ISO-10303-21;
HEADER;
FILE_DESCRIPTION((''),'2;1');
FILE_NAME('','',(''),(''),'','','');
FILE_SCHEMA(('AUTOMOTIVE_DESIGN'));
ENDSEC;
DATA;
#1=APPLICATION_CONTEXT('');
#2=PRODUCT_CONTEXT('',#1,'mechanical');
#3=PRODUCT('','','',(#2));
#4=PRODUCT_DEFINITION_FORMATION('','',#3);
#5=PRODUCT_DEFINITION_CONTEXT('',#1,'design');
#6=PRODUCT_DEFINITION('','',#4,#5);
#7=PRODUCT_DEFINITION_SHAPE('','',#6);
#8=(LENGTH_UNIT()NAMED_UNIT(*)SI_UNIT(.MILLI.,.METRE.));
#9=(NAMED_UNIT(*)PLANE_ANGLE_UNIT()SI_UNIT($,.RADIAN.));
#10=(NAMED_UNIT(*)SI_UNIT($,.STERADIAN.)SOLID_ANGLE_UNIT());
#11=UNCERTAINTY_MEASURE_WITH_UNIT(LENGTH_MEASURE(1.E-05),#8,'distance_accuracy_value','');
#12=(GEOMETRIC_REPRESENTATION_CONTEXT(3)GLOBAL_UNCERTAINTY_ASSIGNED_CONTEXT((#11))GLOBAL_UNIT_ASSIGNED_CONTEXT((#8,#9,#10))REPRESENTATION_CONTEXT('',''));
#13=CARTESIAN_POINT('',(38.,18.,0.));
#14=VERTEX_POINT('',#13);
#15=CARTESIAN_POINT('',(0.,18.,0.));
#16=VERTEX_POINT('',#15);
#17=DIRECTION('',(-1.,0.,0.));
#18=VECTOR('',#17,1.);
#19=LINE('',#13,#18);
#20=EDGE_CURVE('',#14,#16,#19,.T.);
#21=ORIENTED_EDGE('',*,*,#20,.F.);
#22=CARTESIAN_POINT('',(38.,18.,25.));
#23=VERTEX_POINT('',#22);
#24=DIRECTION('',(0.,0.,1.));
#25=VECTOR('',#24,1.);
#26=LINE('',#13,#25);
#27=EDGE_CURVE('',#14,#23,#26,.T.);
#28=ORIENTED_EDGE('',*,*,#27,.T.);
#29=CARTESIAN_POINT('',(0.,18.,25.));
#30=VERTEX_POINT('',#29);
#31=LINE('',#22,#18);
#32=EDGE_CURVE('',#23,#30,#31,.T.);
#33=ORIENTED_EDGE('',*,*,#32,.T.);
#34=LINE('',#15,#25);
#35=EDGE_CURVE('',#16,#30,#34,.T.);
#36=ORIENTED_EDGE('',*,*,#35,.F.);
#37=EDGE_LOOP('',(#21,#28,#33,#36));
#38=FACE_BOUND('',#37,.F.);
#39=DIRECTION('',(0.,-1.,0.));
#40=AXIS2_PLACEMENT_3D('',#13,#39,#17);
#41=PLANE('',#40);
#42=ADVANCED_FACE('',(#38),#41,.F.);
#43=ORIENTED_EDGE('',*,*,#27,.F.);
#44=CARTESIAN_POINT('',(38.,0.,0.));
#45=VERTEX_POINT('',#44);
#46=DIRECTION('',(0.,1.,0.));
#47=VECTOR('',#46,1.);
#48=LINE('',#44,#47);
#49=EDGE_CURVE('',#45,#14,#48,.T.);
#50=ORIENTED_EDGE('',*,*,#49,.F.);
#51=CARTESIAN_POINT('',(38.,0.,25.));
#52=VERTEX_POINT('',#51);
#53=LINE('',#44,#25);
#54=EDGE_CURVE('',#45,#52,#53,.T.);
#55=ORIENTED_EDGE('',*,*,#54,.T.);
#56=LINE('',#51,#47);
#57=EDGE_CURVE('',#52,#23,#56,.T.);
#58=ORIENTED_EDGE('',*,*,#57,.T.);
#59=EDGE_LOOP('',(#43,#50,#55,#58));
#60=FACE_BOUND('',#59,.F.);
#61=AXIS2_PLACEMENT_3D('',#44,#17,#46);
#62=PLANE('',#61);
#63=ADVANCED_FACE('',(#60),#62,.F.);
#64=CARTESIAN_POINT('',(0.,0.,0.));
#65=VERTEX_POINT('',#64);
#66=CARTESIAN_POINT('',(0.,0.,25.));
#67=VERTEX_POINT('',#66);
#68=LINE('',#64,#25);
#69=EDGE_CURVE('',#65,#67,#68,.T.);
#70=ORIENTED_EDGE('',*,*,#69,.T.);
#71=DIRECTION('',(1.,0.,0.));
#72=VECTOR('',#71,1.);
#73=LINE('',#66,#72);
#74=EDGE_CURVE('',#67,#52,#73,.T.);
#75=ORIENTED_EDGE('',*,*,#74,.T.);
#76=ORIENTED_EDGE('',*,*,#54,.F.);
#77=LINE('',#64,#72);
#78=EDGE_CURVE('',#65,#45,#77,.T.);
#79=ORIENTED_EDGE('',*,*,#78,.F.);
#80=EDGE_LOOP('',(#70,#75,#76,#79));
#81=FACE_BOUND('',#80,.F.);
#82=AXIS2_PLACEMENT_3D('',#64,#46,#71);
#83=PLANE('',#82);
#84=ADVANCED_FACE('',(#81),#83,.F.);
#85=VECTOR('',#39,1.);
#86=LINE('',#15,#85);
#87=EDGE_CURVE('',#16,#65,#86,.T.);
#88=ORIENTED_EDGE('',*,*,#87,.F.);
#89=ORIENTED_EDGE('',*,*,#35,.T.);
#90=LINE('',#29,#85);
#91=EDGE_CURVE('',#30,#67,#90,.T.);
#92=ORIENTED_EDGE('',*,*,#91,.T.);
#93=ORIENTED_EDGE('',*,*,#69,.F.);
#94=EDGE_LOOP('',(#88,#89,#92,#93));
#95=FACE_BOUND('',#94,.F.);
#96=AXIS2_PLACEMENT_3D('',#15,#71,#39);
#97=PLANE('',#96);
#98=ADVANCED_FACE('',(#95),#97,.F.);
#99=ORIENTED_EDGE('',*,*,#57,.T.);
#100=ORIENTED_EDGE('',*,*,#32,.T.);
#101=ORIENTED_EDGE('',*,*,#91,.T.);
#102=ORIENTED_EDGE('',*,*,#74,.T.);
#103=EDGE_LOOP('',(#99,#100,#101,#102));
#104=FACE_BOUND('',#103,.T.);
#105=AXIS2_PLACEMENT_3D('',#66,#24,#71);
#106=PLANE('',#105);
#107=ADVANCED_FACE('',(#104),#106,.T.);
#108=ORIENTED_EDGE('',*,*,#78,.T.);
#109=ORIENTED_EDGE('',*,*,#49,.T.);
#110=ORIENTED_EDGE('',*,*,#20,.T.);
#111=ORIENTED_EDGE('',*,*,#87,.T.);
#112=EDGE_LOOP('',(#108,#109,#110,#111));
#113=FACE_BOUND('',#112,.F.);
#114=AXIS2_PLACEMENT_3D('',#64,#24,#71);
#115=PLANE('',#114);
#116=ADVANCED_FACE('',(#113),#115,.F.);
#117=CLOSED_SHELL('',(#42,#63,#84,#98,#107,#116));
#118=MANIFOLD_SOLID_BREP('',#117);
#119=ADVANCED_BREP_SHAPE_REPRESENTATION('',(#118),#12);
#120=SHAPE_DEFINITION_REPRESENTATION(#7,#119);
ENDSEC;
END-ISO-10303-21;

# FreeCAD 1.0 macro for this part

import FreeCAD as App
import Part
import Sketcher

V = App.Vector

doc = App.newDocument("Part")
body = doc.addObject("PartDesign::Body", "Body")

sketch1 = body.newObject("Sketcher::SketchObject", "Sketch")
sketch1.AttachmentSupport = (doc.getObject("XY_Plane"), [""])
sketch1.MapMode = "FlatFace"
sketch1.addGeometry(Part.LineSegment(V(0, 18, 0), V(0, 0, 0)), False)
sketch1.addGeometry(Part.LineSegment(V(0, 0, 0), V(38, 0, 0)), False)
sketch1.addGeometry(Part.LineSegment(V(38, 0, 0), V(38, 18, 0)), False)
sketch1.addGeometry(Part.LineSegment(V(38, 18, 0), V(0, 18, 0)), False)
sketch1.addConstraint(Sketcher.Constraint("Coincident", 0, 2, 1, 1))
sketch1.addConstraint(Sketcher.Constraint("Coincident", 1, 2, 2, 1))
sketch1.addConstraint(Sketcher.Constraint("Coincident", 2, 2, 3, 1))
sketch1.addConstraint(Sketcher.Constraint("Coincident", 3, 2, 0, 1))
sketch1.addConstraint(Sketcher.Constraint("Vertical", 0))
sketch1.addConstraint(Sketcher.Constraint("Horizontal", 1))
sketch1.addConstraint(Sketcher.Constraint("Vertical", 2))
sketch1.addConstraint(Sketcher.Constraint("Horizontal", 3))
sketch1.addConstraint(Sketcher.Constraint("Coincident", 0, 2, -1, 1))
sketch1.addConstraint(Sketcher.Constraint("DistanceX", 1, 1, 1, 2, 38.0))
sketch1.addConstraint(Sketcher.Constraint("DistanceY", 0, 2, 0, 1, 18.0))
pad1 = body.newObject("PartDesign::Pad", "Pad")
pad1.Profile = sketch1
pad1.Length = 25

doc.recompute()
